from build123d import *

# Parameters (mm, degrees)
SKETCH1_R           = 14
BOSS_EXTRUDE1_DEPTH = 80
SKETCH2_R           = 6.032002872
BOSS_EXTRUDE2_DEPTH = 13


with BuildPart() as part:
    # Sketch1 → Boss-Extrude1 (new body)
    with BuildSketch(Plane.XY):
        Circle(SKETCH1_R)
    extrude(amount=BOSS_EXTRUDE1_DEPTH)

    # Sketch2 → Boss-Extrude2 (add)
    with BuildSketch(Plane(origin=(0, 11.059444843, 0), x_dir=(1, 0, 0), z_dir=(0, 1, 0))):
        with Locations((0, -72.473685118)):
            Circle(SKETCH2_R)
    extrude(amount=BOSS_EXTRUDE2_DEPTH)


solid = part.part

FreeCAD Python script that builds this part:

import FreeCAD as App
import Part
import Sketcher
from FreeCAD import Vector

doc = App.newDocument("Part")
params = doc.addObject("Spreadsheet::Sheet", "Params")
for row, (alias, value) in enumerate([
    ("sketch1_diameter", "28 mm"),
    ("pad1_length", "80 mm"),
    ("pad2_length", "13 mm"),
], start=1):
    params.set(f"A{row}", alias)
    params.set(f"B{row}", "=" + value)
    params.setAlias(f"B{row}", alias)

body = doc.addObject("PartDesign::Body", "Body")

sketch1 = body.newObject("Sketcher::SketchObject", "Sketch")
sketch1.AttachmentSupport = (doc.getObject("XY_Plane"), [""])
sketch1.MapMode = "FlatFace"
sketch1.addGeometry(Part.Circle(Vector(0, 0, 0), Vector(0, 0, 1), 14), False)
sketch1.addConstraint([
    Sketcher.Constraint("Coincident", 0, 3, -1, 1),
    Sketcher.Constraint("Diameter", 0, 28.0),
])
sketch1.setExpression("Constraints[1]", "Params.sketch1_diameter")
pad1 = body.newObject("PartDesign::Pad", "Pad")
pad1.Profile = sketch1
pad1.setExpression("Length", "Params.pad1_length")

sketch2 = body.newObject("Sketcher::SketchObject", "Sketch001")
sketch2.AttachmentSupport = (doc.getObject("XZ_Plane"), [""])
sketch2.MapMode = "FlatFace"
sketch2.AttachmentOffset = App.Placement(Vector(0, 0, -11.059445), App.Rotation())
sketch2.addGeometry(Part.Circle(Vector(0, 72.473685, 0), Vector(0, 0, 1), 6.032003), False)
sketch2.addConstraint([
    Sketcher.Constraint("PointOnObject", 0, 3, -2),
    Sketcher.Constraint("Diameter", 0, 12.064006),
    Sketcher.Constraint("DistanceY", -1, 1, 0, 3, 72.473685),
])
pad2 = body.newObject("PartDesign::Pad", "Pad001")
pad2.Profile = sketch2
pad2.setExpression("Length", "Params.pad2_length")
pad2.Reversed = True

doc.recompute()
